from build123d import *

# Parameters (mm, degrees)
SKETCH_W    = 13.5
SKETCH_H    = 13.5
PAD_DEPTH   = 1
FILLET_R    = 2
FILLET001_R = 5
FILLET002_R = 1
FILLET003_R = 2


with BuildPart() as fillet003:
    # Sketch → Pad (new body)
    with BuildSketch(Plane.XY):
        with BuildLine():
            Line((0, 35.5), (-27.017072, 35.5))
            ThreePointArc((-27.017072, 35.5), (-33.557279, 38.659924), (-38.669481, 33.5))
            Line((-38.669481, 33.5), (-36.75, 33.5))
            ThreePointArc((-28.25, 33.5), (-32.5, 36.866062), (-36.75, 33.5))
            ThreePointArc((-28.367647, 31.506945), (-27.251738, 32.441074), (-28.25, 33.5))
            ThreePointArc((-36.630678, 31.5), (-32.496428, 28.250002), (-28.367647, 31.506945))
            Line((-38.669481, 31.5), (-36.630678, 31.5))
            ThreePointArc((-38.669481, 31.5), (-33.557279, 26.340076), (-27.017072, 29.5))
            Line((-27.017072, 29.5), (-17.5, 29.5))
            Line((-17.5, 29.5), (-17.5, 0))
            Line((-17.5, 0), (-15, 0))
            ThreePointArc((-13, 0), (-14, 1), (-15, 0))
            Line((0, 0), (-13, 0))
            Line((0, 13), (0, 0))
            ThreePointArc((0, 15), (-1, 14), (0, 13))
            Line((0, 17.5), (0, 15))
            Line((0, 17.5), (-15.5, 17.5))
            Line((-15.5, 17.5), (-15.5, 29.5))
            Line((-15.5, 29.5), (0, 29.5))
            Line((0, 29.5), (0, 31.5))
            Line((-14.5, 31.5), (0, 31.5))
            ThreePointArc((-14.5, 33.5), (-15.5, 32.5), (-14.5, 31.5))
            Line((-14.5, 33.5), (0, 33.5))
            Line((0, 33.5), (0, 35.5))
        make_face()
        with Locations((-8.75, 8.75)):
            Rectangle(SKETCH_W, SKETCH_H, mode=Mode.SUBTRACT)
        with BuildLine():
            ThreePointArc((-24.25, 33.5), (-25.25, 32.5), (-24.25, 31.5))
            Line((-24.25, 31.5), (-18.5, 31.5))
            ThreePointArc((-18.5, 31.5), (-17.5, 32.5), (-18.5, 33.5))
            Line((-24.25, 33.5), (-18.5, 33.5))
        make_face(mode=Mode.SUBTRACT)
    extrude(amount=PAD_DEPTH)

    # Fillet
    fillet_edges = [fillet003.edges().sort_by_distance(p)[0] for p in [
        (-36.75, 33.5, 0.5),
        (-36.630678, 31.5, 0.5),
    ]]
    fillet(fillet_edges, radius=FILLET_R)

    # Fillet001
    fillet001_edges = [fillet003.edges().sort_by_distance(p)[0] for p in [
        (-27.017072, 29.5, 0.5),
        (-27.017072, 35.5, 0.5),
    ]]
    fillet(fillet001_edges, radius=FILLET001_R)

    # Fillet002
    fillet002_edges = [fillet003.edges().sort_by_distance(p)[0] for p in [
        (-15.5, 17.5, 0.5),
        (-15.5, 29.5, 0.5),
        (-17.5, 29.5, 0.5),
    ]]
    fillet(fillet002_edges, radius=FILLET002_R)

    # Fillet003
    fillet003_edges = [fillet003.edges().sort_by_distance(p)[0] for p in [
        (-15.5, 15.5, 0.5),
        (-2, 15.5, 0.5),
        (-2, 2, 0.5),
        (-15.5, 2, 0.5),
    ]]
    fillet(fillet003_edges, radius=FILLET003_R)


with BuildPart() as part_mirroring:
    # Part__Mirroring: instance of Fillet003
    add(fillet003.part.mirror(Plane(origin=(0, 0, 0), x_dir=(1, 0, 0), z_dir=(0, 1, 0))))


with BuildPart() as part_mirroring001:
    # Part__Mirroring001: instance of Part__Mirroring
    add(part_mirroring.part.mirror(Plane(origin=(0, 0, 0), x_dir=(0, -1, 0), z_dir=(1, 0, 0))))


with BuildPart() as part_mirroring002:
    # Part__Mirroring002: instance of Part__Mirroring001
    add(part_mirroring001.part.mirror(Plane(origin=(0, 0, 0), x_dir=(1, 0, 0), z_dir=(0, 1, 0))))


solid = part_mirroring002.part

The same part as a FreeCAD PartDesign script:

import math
import FreeCAD as App
import Part
import Sketcher

V = App.Vector


def edges_at(feature, points):
    """Names of the edges that pass closest to the given points."""
    edges = feature.Shape.Edges
    near = lambda p: min(range(len(edges)), key=lambda i: edges[i].distToShape(Part.Vertex(*p))[0])
    return sorted({f"Edge{near(p) + 1}" for p in points})

doc = App.newDocument("Part")
params = doc.addObject("Spreadsheet::Sheet", "Params")
for row, (alias, value) in enumerate([
    ("sketch1_radius", "1 mm"),
    ("sketch1_width", "13 mm"),
    ("sketch1_height", "12 mm"),
    ("sketch1_height2", "2 mm"),
    ("sketch1_radius2", "6.25 mm"),
    ("pad1_length", "1 mm"),
    ("fillet_radius", "2 mm"),
    ("fillet2_radius", "5 mm"),
    ("fillet3_radius", "1 mm"),
    ("fillet4_radius", "2 mm"),
], start=1):
    params.set(f"A{row}", alias)
    params.set(f"B{row}", "=" + value)
    params.setAlias(f"B{row}", alias)

body = doc.addObject("PartDesign::Body", "Body")

# Sketch on XY plane
sketch1 = doc.addObject("Sketcher::SketchObject", "Sketch")
body.addObject(sketch1)
sketch1.AttachmentSupport = (doc.XY_Plane, [""])
sketch1.MapMode = "FlatFace"
sketch1.addGeometry([
    Part.LineSegment(V(0, 35.5, 0), V(-27, 35.5, 0)),  # 0
    Part.ArcOfCircle(Part.Circle(V(-32.5, 32.5, 0), V(0, 0, 1), 6.2), math.radians(29), math.radians(171)),  # 1
    Part.LineSegment(V(-38.7, 33.5, 0), V(-36.8, 33.5, 0)),  # 2
    Part.ArcOfCircle(Part.Circle(V(-32.5, 32.5, 0), V(0, 0, 1), 4.4), math.radians(13), math.radians(167)),  # 3
    Part.ArcOfCircle(Part.Circle(V(-28.3, 32.5, 0), V(0, 0, 1), 1), math.radians(-97), math.radians(90)),  # 4
    Part.ArcOfCircle(Part.Circle(V(-32.5, 32.5, 0), V(0, 0, 1), 4.3), math.radians(-166), math.radians(-14)),  # 5
    Part.LineSegment(V(-36.6, 31.5, 0), V(-38.7, 31.5, 0)),  # 6
    Part.ArcOfCircle(Part.Circle(V(-32.5, 32.5, 0), V(0, 0, 1), 6.2), math.radians(-171), math.radians(-29)),  # 7
    Part.LineSegment(V(-27, 29.5, 0), V(-17.5, 29.5, 0)),  # 8
    Part.LineSegment(V(-17.5, 29.5, 0), V(-17.5, 0, 0)),  # 9
    Part.LineSegment(V(-17.5, 0, 0), V(-15, 0, 0)),  # 10
    Part.ArcOfCircle(Part.Circle(V(-14, 0, 0), V(0, 0, 1), 1), math.radians(0), math.radians(180)),  # 11
    Part.LineSegment(V(-13, 0, 0), V(0, 0, 0)),  # 12
    Part.LineSegment(V(0, 0, 0), V(0, 13, 0)),  # 13
    Part.ArcOfCircle(Part.Circle(V(0, 14, 0), V(0, 0, 1), 1), math.radians(90), math.radians(270)),  # 14
    Part.LineSegment(V(0, 15, 0), V(0, 17.5, 0)),  # 15
    Part.LineSegment(V(0, 17.5, 0), V(-15.5, 17.5, 0)),  # 16
    Part.LineSegment(V(-15.5, 17.5, 0), V(-15.5, 29.5, 0)),  # 17
    Part.LineSegment(V(-15.5, 29.5, 0), V(0, 29.5, 0)),  # 18
    Part.LineSegment(V(0, 29.5, 0), V(0, 31.5, 0)),  # 19
    Part.LineSegment(V(0, 31.5, 0), V(-14.5, 31.5, 0)),  # 20
    Part.ArcOfCircle(Part.Circle(V(-14.5, 32.5, 0), V(0, 0, 1), 1), math.radians(90), math.radians(270)),  # 21
    Part.LineSegment(V(-14.5, 33.5, 0), V(0, 33.5, 0)),  # 22
    Part.LineSegment(V(0, 33.5, 0), V(0, 35.5, 0)),  # 23
    Part.LineSegment(V(-2, 2, 0), V(-15.5, 2, 0)),  # 24
    Part.LineSegment(V(-15.5, 2, 0), V(-15.5, 15.5, 0)),  # 25
    Part.LineSegment(V(-15.5, 15.5, 0), V(-2, 15.5, 0)),  # 26
    Part.LineSegment(V(-2, 15.5, 0), V(-2, 2, 0)),  # 27
    Part.ArcOfCircle(Part.Circle(V(-24.2, 32.5, 0), V(0, 0, 1), 1), math.radians(90), math.radians(270)),  # 28
    Part.LineSegment(V(-24.2, 33.5, 0), V(-18.5, 33.5, 0)),  # 29
    Part.ArcOfCircle(Part.Circle(V(-18.5, 32.5, 0), V(0, 0, 1), 1), math.radians(-90), math.radians(90)),  # 30
    Part.LineSegment(V(-18.5, 31.5, 0), V(-24.2, 31.5, 0)),  # 31
], False)
sketch1.addConstraint([
    Sketcher.Constraint("Coincident", 0, 2, 1, 1),
    Sketcher.Constraint("Coincident", 1, 2, 2, 1),
    Sketcher.Constraint("Coincident", 2, 2, 3, 2),
    Sketcher.Constraint("Coincident", 3, 1, 4, 2),
    Sketcher.Constraint("Coincident", 4, 1, 5, 2),
    Sketcher.Constraint("Coincident", 5, 1, 6, 1),
    Sketcher.Constraint("Coincident", 6, 2, 7, 1),
    Sketcher.Constraint("Coincident", 7, 2, 8, 1),
    Sketcher.Constraint("Coincident", 8, 2, 9, 1),
    Sketcher.Constraint("Coincident", 9, 2, 10, 1),
    Sketcher.Constraint("Coincident", 10, 2, 11, 2),
    Sketcher.Constraint("Coincident", 11, 1, 12, 1),
    Sketcher.Constraint("Coincident", 12, 2, 13, 1),
    Sketcher.Constraint("Coincident", 13, 2, 14, 2),
    Sketcher.Constraint("Coincident", 14, 1, 15, 1),
    Sketcher.Constraint("Coincident", 15, 2, 16, 1),
    Sketcher.Constraint("Coincident", 16, 2, 17, 1),
    Sketcher.Constraint("Coincident", 17, 2, 18, 1),
    Sketcher.Constraint("Coincident", 18, 2, 19, 1),
    Sketcher.Constraint("Coincident", 19, 2, 20, 1),
    Sketcher.Constraint("Tangent", 20, 2, 21, 2),
    Sketcher.Constraint("Tangent", 21, 1, 22, 1),
    Sketcher.Constraint("Coincident", 22, 2, 23, 1),
    Sketcher.Constraint("Coincident", 23, 2, 0, 1),
    Sketcher.Constraint("Coincident", 24, 2, 25, 1),
    Sketcher.Constraint("Coincident", 25, 2, 26, 1),
    Sketcher.Constraint("Coincident", 26, 2, 27, 1),
    Sketcher.Constraint("Coincident", 27, 2, 24, 1),
    Sketcher.Constraint("Tangent", 28, 1, 29, 1),
    Sketcher.Constraint("Tangent", 29, 2, 30, 2),
    Sketcher.Constraint("Tangent", 30, 1, 31, 1),
    Sketcher.Constraint("Tangent", 31, 2, 28, 2),
    Sketcher.Constraint("Horizontal", 0),
    Sketcher.Constraint("Horizontal", 2),
    Sketcher.Constraint("Horizontal", 6),
    Sketcher.Constraint("Horizontal", 8),
    Sketcher.Constraint("Vertical", 9),
    Sketcher.Constraint("Horizontal", 10),
    Sketcher.Constraint("Horizontal", 12),
    Sketcher.Constraint("Vertical", 13),
    Sketcher.Constraint("Vertical", 15),
    Sketcher.Constraint("Horizontal", 16),
    Sketcher.Constraint("Vertical", 17),
    Sketcher.Constraint("Horizontal", 18),
    Sketcher.Constraint("Vertical", 19),
    Sketcher.Constraint("Horizontal", 20),
    Sketcher.Constraint("Horizontal", 22),
    Sketcher.Constraint("Vertical", 23),
    Sketcher.Constraint("Horizontal", 24),
    Sketcher.Constraint("Vertical", 25),
    Sketcher.Constraint("Horizontal", 26),
    Sketcher.Constraint("Vertical", 27),
    Sketcher.Constraint("Horizontal", 29),
    Sketcher.Constraint("Horizontal", 31),
    Sketcher.Constraint("Coincident", 12, 2, -1, 1),
    Sketcher.Constraint("Coincident", 3, 3, 1, 3),
    Sketcher.Constraint("Coincident", 5, 3, 1, 3),
    Sketcher.Constraint("Coincident", 7, 3, 1, 3),
    Sketcher.Constraint("Equal", 1, 7),
    Sketcher.Constraint("Equal", 4, 11),
    Sketcher.Constraint("Equal", 11, 14),
    Sketcher.Constraint("Equal", 14, 21),
    Sketcher.Constraint("Equal", 21, 28),
    Sketcher.Constraint("PointOnObject", 11, 3, -1),
    Sketcher.Constraint("PointOnObject", 14, 3, -2),
    Sketcher.Constraint("PointOnObject", 9, 2, -1),
    Sketcher.Constraint("PointOnObject", 14, 1, -2),
    Sketcher.Constraint("PointOnObject", 18, 2, -2),
    Sketcher.Constraint("PointOnObject", 22, 2, -2),
    Sketcher.Constraint("Horizontal", 3, 3, 4, 3),
    Sketcher.Constraint("Horizontal", 7, 3, 21, 3),
    Sketcher.Constraint("Horizontal", 21, 3, 28, 3),
    Sketcher.Constraint("Horizontal", 2, 2, 3, 1),
    Sketcher.Constraint("Horizontal", 8, 2, 17, 2),
    Sketcher.Constraint("Horizontal", 6, 2, 19, 2),
    Sketcher.Constraint("Vertical", 4, 3, 3, 1),
    Sketcher.Constraint("Vertical", 0, 2, 7, 2),
    Sketcher.Constraint("Vertical", 17, 2, 24, 2),
    Sketcher.Constraint("Equal", 12, 13),
    Sketcher.Constraint("Equal", 10, 15),
    Sketcher.Constraint("Equal", 26, 25),
    Sketcher.Constraint("Radius", 4, 1.0),
    Sketcher.Constraint("DistanceX", 12, 1, 12, 2, 13.0),
    Sketcher.Constraint("DistanceY", 17, 1, 17, 2, 12.0),
    Sketcher.Constraint("DistanceY", 19, 1, 19, 2, 2.0),
    Sketcher.Constraint("Radius", 1, 6.25),
    Sketcher.Constraint("Radius", 5, 4.25),
    Sketcher.Constraint("DistanceX", 10, 1, 10, 2, 2.5),
    Sketcher.Constraint("DistanceX", 16, 2, 16, 1, 15.5),
    Sketcher.Constraint("DistanceX", 20, 2, 20, 1, 14.5),
    Sketcher.Constraint("DistanceX", 24, 2, 24, 1, 13.5),
    Sketcher.Constraint("DistanceY", -1, 1, 24, 2, 2.0),
    Sketcher.Constraint("DistanceX", 1, 3, 21, 3, 18.0),
    Sketcher.Constraint("DistanceX", 4, 3, 28, 3, 4.0),
    Sketcher.Constraint("DistanceX", 30, 3, 21, 3, 4.0),
    Sketcher.Constraint("DistanceX", 29, 1, 29, 2, 5.75),
])
sketch1.setExpression("Constraints[81]", "Params.sketch1_radius")
sketch1.setExpression("Constraints[82]", "Params.sketch1_width")
sketch1.setExpression("Constraints[83]", "Params.sketch1_height")
sketch1.setExpression("Constraints[84]", "Params.sketch1_height2")
sketch1.setExpression("Constraints[85]", "Params.sketch1_radius2")
pad1 = doc.addObject("PartDesign::Pad", "Pad")
body.addObject(pad1)
pad1.Profile = sketch1
pad1.setExpression("Length", "Params.pad1_length")
doc.recompute()

fillet = doc.addObject("PartDesign::Fillet", "Fillet")
body.addObject(fillet)
fillet.Base = (pad1, edges_at(pad1, [(-36.75, 33.5, 0.5), (-36.631, 31.5, 0.5)]))
fillet.setExpression("Radius", "Params.fillet_radius")
doc.recompute()

fillet2 = doc.addObject("PartDesign::Fillet", "Fillet001")
body.addObject(fillet2)
fillet2.Base = (fillet, edges_at(fillet, [(-27.017, 29.5, 0.5), (-27.017, 35.5, 0.5)]))
fillet2.setExpression("Radius", "Params.fillet2_radius")
doc.recompute()

fillet3 = doc.addObject("PartDesign::Fillet", "Fillet002")
body.addObject(fillet3)
fillet3.Base = (fillet2, edges_at(fillet2, [(-15.5, 17.5, 0.5), (-15.5, 29.5, 0.5), (-17.5, 29.5, 0.5)]))
fillet3.setExpression("Radius", "Params.fillet3_radius")
doc.recompute()

fillet4 = doc.addObject("PartDesign::Fillet", "Fillet003")
body.addObject(fillet4)
fillet4.Base = (fillet3, edges_at(fillet3, [
    (-15.5, 15.5, 0.5),
    (-2, 15.5, 0.5),
    (-2, 2, 0.5),
    (-15.5, 2, 0.5),
]))
fillet4.setExpression("Radius", "Params.fillet4_radius")
body2 = doc.addObject("PartDesign::Body", "Body001")
doc.recompute()

mirroring = doc.addObject("Part::Mirroring", "Mirroring")
mirroring.Source = body
mirroring.Base = V(0, 0, 0)
mirroring.Normal = V(0, 1, 0)
body2.BaseFeature = mirroring
doc.recompute()
body3 = doc.addObject("PartDesign::Body", "Body002")
doc.recompute()

mirroring2 = doc.addObject("Part::Mirroring", "Mirroring001")
mirroring2.Source = body2
mirroring2.Base = V(0, 0, 0)
mirroring2.Normal = V(1, 0, 0)
body3.BaseFeature = mirroring2
doc.recompute()
body4 = doc.addObject("PartDesign::Body", "Body003")
doc.recompute()

mirroring3 = doc.addObject("Part::Mirroring", "Mirroring002")
mirroring3.Source = body3
mirroring3.Base = V(0, 0, 0)
mirroring3.Normal = V(0, 1, 0)
body4.BaseFeature = mirroring3
doc.recompute()
body.Visibility = False
body2.Visibility = False
body3.Visibility = False
mirroring.Visibility = False
mirroring2.Visibility = False
mirroring3.Visibility = False

doc.recompute()
